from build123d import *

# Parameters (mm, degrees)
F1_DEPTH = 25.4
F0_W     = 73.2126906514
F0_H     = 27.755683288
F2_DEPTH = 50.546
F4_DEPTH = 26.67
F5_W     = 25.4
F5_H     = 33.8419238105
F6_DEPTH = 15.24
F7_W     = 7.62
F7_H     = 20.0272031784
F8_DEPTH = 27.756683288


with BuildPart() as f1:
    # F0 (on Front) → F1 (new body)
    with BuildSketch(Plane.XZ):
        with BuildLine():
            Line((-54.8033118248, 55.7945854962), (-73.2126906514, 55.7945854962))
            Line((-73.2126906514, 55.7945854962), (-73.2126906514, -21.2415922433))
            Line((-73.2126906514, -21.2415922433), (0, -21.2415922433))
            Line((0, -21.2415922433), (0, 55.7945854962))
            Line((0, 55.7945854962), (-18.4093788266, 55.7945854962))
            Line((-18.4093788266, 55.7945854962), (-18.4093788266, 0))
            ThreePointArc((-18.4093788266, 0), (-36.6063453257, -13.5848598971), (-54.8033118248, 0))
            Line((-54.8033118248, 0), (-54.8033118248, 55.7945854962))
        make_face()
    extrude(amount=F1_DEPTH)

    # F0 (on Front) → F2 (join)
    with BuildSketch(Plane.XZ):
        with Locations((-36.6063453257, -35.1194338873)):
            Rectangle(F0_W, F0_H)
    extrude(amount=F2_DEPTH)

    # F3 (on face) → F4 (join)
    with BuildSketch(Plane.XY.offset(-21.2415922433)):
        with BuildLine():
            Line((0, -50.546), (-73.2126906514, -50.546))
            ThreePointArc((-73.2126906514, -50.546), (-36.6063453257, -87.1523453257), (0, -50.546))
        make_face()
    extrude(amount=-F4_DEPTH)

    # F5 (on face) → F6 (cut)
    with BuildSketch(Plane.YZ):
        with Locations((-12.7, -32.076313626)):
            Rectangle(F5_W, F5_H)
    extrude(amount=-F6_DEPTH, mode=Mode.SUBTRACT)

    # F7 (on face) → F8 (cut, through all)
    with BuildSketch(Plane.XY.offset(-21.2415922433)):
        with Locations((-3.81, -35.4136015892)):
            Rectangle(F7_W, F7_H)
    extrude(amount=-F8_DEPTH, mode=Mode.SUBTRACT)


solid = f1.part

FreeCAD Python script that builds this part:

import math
import FreeCAD as App
import Part
import Sketcher

V = App.Vector
Q = App.Units.Quantity


def add_polygon(sketch, points):
    """Adds a closed chain of lines whose ends are joined by coincident constraints."""
    first, n = sketch.GeometryCount, len(points)
    for a, b in zip(points, points[1:] + points[:1]):
        sketch.addGeometry(Part.LineSegment(App.Vector(*a, 0), App.Vector(*b, 0)), False)
    for i in range(n):
        sketch.addConstraint(Sketcher.Constraint("Coincident", first + i, 2, first + (i + 1) % n, 1))

doc = App.newDocument("Part")
body = doc.addObject("PartDesign::Body", "Body")

# Sketch on XZ plane
sketch1 = body.newObject("Sketcher::SketchObject", "Sketch")
sketch1.AttachmentSupport = (doc.getObject("XZ_Plane"), [""])
sketch1.MapMode = "FlatFace"
sketch1.addGeometry([
    Part.LineSegment(V(-54.803312, 55.794585, 0), V(-73.212691, 55.794585, 0)),  # 0
    Part.LineSegment(V(-73.212691, 55.794585, 0), V(-73.212691, -21.241592, 0)),  # 1
    Part.LineSegment(V(-73.212691, -21.241592, 0), V(0, -21.241592, 0)),  # 2
    Part.LineSegment(V(0, -21.241592, 0), V(0, 55.794585, 0)),  # 3
    Part.LineSegment(V(0, 55.794585, 0), V(-18.409379, 55.794585, 0)),  # 4
    Part.LineSegment(V(-18.409379, 55.794585, 0), V(-18.409379, 0, 0)),  # 5
    Part.ArcOfCircle(Part.Circle(V(-36.606345, 5.39502, 0), V(0, 0, 1), 18.97988), math.radians(-163.486012), math.radians(-16.513988)),  # 6
    Part.LineSegment(V(-54.803312, 0, 0), V(-54.803312, 55.794585, 0)),  # 7
], False)
sketch1.addConstraint([
    Sketcher.Constraint("Coincident", 0, 2, 1, 1),
    Sketcher.Constraint("Coincident", 1, 2, 2, 1),
    Sketcher.Constraint("Coincident", 2, 2, 3, 1),
    Sketcher.Constraint("Coincident", 3, 2, 4, 1),
    Sketcher.Constraint("Coincident", 4, 2, 5, 1),
    Sketcher.Constraint("Coincident", 5, 2, 6, 2),
    Sketcher.Constraint("Coincident", 6, 1, 7, 1),
    Sketcher.Constraint("Coincident", 7, 2, 0, 1),
    Sketcher.Constraint("Horizontal", 0),
    Sketcher.Constraint("Vertical", 1),
    Sketcher.Constraint("Horizontal", 2),
    Sketcher.Constraint("Vertical", 3),
    Sketcher.Constraint("Horizontal", 4),
    Sketcher.Constraint("Vertical", 5),
    Sketcher.Constraint("Vertical", 7),
    Sketcher.Constraint("PointOnObject", 2, 2, -2),
    Sketcher.Constraint("PointOnObject", 5, 2, -1),
    Sketcher.Constraint("PointOnObject", 6, 1, -1),
    Sketcher.Constraint("Horizontal", 0, 2, 3, 2),
    Sketcher.Constraint("Equal", 0, 4),
    Sketcher.Constraint("Radius", 6, Q("18.97988 mm")),
    Sketcher.Constraint("DistanceX", 0, 2, 0, 1, Q("18.409379 mm")),
    Sketcher.Constraint("DistanceX", 2, 1, 2, 2, Q("73.212691 mm")),
    Sketcher.Constraint("DistanceY", 1, 2, 1, 1, Q("77.036178 mm")),
    Sketcher.Constraint("DistanceY", 5, 2, 5, 1, Q("55.794585 mm")),
])
pad1 = body.newObject("PartDesign::Pad", "Pad")
pad1.Profile = sketch1
pad1.Length = Q("1 in")

# Sketch on XZ plane
sketch2 = body.newObject("Sketcher::SketchObject", "Sketch001")
sketch2.AttachmentSupport = (doc.getObject("XZ_Plane"), [""])
sketch2.MapMode = "FlatFace"
add_polygon(sketch2, [(-73.212691, -21.241592), (-73.212691, -48.997276), (0, -48.997276), (0, -21.241592)])  # lines 0-3
sketch2.addConstraint([
    Sketcher.Constraint("Vertical", 0),
    Sketcher.Constraint("Horizontal", 1),
    Sketcher.Constraint("Vertical", 2),
    Sketcher.Constraint("Horizontal", 3),
    Sketcher.Constraint("PointOnObject", 1, 2, -2),
    Sketcher.Constraint("DistanceX", 1, 1, 1, 2, Q("73.212691 mm")),
    Sketcher.Constraint("DistanceY", 0, 2, 0, 1, Q("27.755683 mm")),
    Sketcher.Constraint("DistanceY", 0, 2, -1, 1, Q("48.997276 mm")),
])
pad2 = body.newObject("PartDesign::Pad", "Pad001")
pad2.Profile = sketch2
pad2.Length = Q("1.99 in")

# Sketch on XY plane
sketch3 = body.newObject("Sketcher::SketchObject", "Sketch002")
sketch3.AttachmentSupport = (doc.getObject("XY_Plane"), [""])
sketch3.MapMode = "FlatFace"
sketch3.AttachmentOffset = App.Placement(V(0, 0, -21.241592), App.Rotation())
sketch3.addGeometry([
    Part.LineSegment(V(0, -50.546, 0), V(-73.212691, -50.546, 0)),
    Part.ArcOfCircle(Part.Circle(V(-36.606345, -50.546, 0), V(0, 0, 1), 36.606345), math.radians(180), math.radians(360)),
], False)
sketch3.addConstraint([
    Sketcher.Constraint("Coincident", 0, 1, 1, 2),
    Sketcher.Constraint("Coincident", 1, 1, 0, 2),
    Sketcher.Constraint("Horizontal", 0),
    Sketcher.Constraint("PointOnObject", 0, 1, -2),
    Sketcher.Constraint("Horizontal", 1, 3, 0, 1),
    Sketcher.Constraint("DistanceY", 1, 3, -1, 1, Q("1.99 in")),
    Sketcher.Constraint("Radius", 1, Q("36.606345 mm")),
])
pad3 = body.newObject("PartDesign::Pad", "Pad002")
pad3.Profile = sketch3
pad3.Length = Q("1.05 in")
pad3.Reversed = True

# Sketch on YZ plane
sketch4 = body.newObject("Sketcher::SketchObject", "Sketch003")
sketch4.AttachmentSupport = (doc.getObject("YZ_Plane"), [""])
sketch4.MapMode = "FlatFace"
add_polygon(sketch4, [(-25.4, -15.155352), (-25.4, -48.997276), (0, -48.997276), (0, -15.155352)])  # lines 0-3
sketch4.addConstraint([
    Sketcher.Constraint("Vertical", 0),
    Sketcher.Constraint("Horizontal", 1),
    Sketcher.Constraint("Vertical", 2),
    Sketcher.Constraint("Horizontal", 3),
    Sketcher.Constraint("PointOnObject", 1, 2, -2),
    Sketcher.Constraint("DistanceX", 1, 1, 1, 2, Q("1 in")),
    Sketcher.Constraint("DistanceY", 0, 2, 0, 1, Q("33.841924 mm")),
    Sketcher.Constraint("DistanceY", 2, 2, -1, 1, Q("15.155352 mm")),
])
pocket1 = body.newObject("PartDesign::Pocket", "Pocket")
pocket1.Profile = sketch4
pocket1.Length = Q("0.6 in")

# Sketch on XY plane
sketch5 = body.newObject("Sketcher::SketchObject", "Sketch004")
sketch5.AttachmentSupport = (doc.getObject("XY_Plane"), [""])
sketch5.MapMode = "FlatFace"
sketch5.AttachmentOffset = App.Placement(V(0, 0, -21.241592), App.Rotation())
add_polygon(sketch5, [(-7.62, -25.4), (-7.62, -45.427203), (0, -45.427203), (0, -25.4)])  # lines 0-3
sketch5.addConstraint([
    Sketcher.Constraint("Vertical", 0),
    Sketcher.Constraint("Horizontal", 1),
    Sketcher.Constraint("Vertical", 2),
    Sketcher.Constraint("Horizontal", 3),
    Sketcher.Constraint("PointOnObject", 1, 2, -2),
    Sketcher.Constraint("DistanceX", 1, 1, 1, 2, Q("0.3 in")),
    Sketcher.Constraint("DistanceY", 2, 2, -1, 1, Q("1 in")),
    Sketcher.Constraint("DistanceY", 0, 2, 0, 1, Q("20.027203 mm")),
])
pocket2 = body.newObject("PartDesign::Pocket", "Pocket001")
pocket2.Profile = sketch5
pocket2.Type = "ThroughAll"

doc.recompute()
